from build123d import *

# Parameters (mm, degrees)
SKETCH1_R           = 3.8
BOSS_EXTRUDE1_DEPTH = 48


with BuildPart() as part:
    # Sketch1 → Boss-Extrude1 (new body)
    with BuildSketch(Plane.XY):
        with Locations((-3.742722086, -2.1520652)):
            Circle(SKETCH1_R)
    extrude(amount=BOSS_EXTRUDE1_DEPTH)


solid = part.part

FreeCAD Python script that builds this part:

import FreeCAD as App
import Part
import Sketcher

V = App.Vector
Q = App.Units.Quantity

doc = App.newDocument("Part")
params = doc.addObject("Spreadsheet::Sheet", "Params")
for row, (alias, value) in enumerate([
    ("sketch1_diameter", "7.6 mm"),
    ("pad1_length", "48 mm"),
], start=1):
    params.set(f"A{row}", alias)
    params.set(f"B{row}", "=" + value)
    params.setAlias(f"B{row}", alias)

body = doc.addObject("PartDesign::Body", "Body")

# Sketch on XY plane
sketch1 = body.newObject("Sketcher::SketchObject", "Sketch")
sketch1.AttachmentSupport = (doc.getObject("XY_Plane"), [""])
sketch1.MapMode = "FlatFace"
sketch1.addGeometry(Part.Circle(V(-3.742722, -2.152065, 0), V(0, 0, 1), 3.8), False)
sketch1.addConstraint(Sketcher.Constraint("Diameter", 0, Q("7.6 mm")))
sketch1.addConstraint(Sketcher.Constraint("DistanceX", 0, 3, -1, 1, Q("3.742722 mm")))
sketch1.addConstraint(Sketcher.Constraint("DistanceY", 0, 3, -1, 1, Q("2.152065 mm")))
sketch1.setExpression("Constraints[0]", "Params.sketch1_diameter")
pad1 = body.newObject("PartDesign::Pad", "Pad")
pad1.Profile = sketch1
pad1.setExpression("Length", "Params.pad1_length")

doc.recompute()
